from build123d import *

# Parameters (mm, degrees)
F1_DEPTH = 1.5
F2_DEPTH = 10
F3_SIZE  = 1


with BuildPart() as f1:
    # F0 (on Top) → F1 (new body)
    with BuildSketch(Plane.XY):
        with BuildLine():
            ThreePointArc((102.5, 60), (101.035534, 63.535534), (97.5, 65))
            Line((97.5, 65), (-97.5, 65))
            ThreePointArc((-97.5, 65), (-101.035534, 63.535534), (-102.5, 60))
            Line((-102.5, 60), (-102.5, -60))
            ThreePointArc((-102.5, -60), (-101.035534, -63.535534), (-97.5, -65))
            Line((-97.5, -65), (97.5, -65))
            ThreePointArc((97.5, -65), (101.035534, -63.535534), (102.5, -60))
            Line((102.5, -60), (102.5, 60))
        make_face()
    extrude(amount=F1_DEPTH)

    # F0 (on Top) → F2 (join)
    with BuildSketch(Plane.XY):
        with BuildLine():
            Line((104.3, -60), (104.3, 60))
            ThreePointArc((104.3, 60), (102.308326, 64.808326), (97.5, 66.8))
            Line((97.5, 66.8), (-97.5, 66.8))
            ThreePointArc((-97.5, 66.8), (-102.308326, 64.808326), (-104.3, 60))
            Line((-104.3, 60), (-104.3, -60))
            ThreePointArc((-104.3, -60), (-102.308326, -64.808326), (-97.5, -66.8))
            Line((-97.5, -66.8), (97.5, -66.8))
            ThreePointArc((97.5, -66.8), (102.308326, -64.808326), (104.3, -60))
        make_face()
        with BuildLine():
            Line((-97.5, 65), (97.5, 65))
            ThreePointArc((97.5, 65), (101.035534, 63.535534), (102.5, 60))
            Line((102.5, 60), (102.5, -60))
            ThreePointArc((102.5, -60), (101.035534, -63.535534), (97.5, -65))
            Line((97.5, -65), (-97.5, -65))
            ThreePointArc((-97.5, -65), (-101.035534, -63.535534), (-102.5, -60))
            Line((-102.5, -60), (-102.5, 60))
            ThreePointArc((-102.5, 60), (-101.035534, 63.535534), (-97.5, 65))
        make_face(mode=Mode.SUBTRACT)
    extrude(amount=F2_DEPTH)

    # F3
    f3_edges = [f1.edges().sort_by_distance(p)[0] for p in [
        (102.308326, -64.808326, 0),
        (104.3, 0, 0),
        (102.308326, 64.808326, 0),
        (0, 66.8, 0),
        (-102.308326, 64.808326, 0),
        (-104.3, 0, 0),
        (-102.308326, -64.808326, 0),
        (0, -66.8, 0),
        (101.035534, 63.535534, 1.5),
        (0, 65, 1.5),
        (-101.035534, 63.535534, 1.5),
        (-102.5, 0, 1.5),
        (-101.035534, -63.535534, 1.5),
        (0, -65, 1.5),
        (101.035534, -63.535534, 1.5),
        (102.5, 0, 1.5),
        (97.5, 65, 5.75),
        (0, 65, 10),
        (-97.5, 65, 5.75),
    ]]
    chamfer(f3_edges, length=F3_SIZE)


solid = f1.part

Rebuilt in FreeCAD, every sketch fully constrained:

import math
import FreeCAD as App
import Part
import Sketcher
from FreeCAD import Vector
Q = App.Units.Quantity


def edges_at(feature, points):
    """Names of the edges that pass closest to the given points."""
    edges = feature.Shape.Edges
    near = lambda p: min(range(len(edges)), key=lambda i: edges[i].distToShape(Part.Vertex(*p))[0])
    return sorted({f"Edge{near(p) + 1}" for p in points})

doc = App.newDocument("Part")
body = doc.addObject("PartDesign::Body", "Body")

sketch1 = body.newObject("Sketcher::SketchObject", "Sketch")
sketch1.AttachmentSupport = (doc.getObject("XY_Plane"), [""])
sketch1.MapMode = "FlatFace"
sketch1.addGeometry([
    Part.ArcOfCircle(Part.Circle(Vector(97.5, 60, 0), Vector(0, 0, 1), 5), math.radians(-0.000004), math.radians(90.000004)),
    Part.LineSegment(Vector(97.5, 65, 0), Vector(-97.5, 65, 0)),
    Part.ArcOfCircle(Part.Circle(Vector(-97.5, 60, 0), Vector(0, 0, 1), 5), math.radians(89.999996), math.radians(180.000004)),
    Part.LineSegment(Vector(-102.5, 60, 0), Vector(-102.5, -60, 0)),
    Part.ArcOfCircle(Part.Circle(Vector(-97.5, -60, 0), Vector(0, 0, 1), 5), math.radians(179.999996), math.radians(270.000004)),
    Part.LineSegment(Vector(-97.5, -65, 0), Vector(97.5, -65, 0)),
    Part.ArcOfCircle(Part.Circle(Vector(97.5, -60, 0), Vector(0, 0, 1), 5), math.radians(-90.000004), math.radians(0.000004)),
    Part.LineSegment(Vector(102.5, -60, 0), Vector(102.5, 60, 0)),
], False)
sketch1.addConstraint([
    Sketcher.Constraint("Tangent", 0, 2, 1, 1),
    Sketcher.Constraint("Tangent", 1, 2, 2, 1),
    Sketcher.Constraint("Tangent", 2, 2, 3, 1),
    Sketcher.Constraint("Tangent", 3, 2, 4, 1),
    Sketcher.Constraint("Tangent", 4, 2, 5, 1),
    Sketcher.Constraint("Tangent", 5, 2, 6, 1),
    Sketcher.Constraint("Tangent", 6, 2, 7, 1),
    Sketcher.Constraint("Tangent", 7, 2, 0, 1),
    Sketcher.Constraint("Horizontal", 1),
    Sketcher.Constraint("Vertical", 3),
    Sketcher.Constraint("Horizontal", 5),
    Sketcher.Constraint("Vertical", 7),
    Sketcher.Constraint("Equal", 0, 2),
    Sketcher.Constraint("Equal", 2, 4),
    Sketcher.Constraint("Equal", 4, 6),
    Sketcher.Constraint("Symmetric", 0, 3, 4, 3, -1, 1),
    Sketcher.Constraint("Radius", 0, Q("5 mm")),
    Sketcher.Constraint("DistanceX", 1, 2, 1, 1, Q("195 mm")),
    Sketcher.Constraint("DistanceY", 3, 2, 3, 1, Q("120 mm")),
])
pad1 = body.newObject("PartDesign::Pad", "Pad")
pad1.Profile = sketch1
pad1.Length = 1.5

sketch2 = body.newObject("Sketcher::SketchObject", "Sketch001")
sketch2.AttachmentSupport = (doc.getObject("XY_Plane"), [""])
sketch2.MapMode = "FlatFace"
sketch2.addGeometry([
    Part.LineSegment(Vector(104.3, -60, 0), Vector(104.3, 60, 0)),
    Part.ArcOfCircle(Part.Circle(Vector(97.5, 60, 0), Vector(0, 0, 1), 6.8), math.radians(0.000003), math.radians(89.999997)),
    Part.LineSegment(Vector(97.5, 66.8, 0), Vector(-97.5, 66.8, 0)),
    Part.ArcOfCircle(Part.Circle(Vector(-97.5, 60, 0), Vector(0, 0, 1), 6.8), math.radians(90.000003), math.radians(179.999997)),
    Part.LineSegment(Vector(-104.3, 60, 0), Vector(-104.3, -60, 0)),
    Part.ArcOfCircle(Part.Circle(Vector(-97.5, -60, 0), Vector(0, 0, 1), 6.8), math.radians(-179.999997), math.radians(-90.000003)),
    Part.LineSegment(Vector(-97.5, -66.8, 0), Vector(97.5, -66.8, 0)),
    Part.ArcOfCircle(Part.Circle(Vector(97.5, -60, 0), Vector(0, 0, 1), 6.8), math.radians(-89.999997), math.radians(-0.000003)),
    Part.ArcOfCircle(Part.Circle(Vector(-97.5, 60, 0), Vector(0, 0, 1), 5), math.radians(89.999996), math.radians(180.000004)),
    Part.LineSegment(Vector(-97.5, 65, 0), Vector(97.5, 65, 0)),
    Part.ArcOfCircle(Part.Circle(Vector(97.5, 60, 0), Vector(0, 0, 1), 5), math.radians(-0.000004), math.radians(90.000004)),
    Part.LineSegment(Vector(102.5, 60, 0), Vector(102.5, -60, 0)),
    Part.ArcOfCircle(Part.Circle(Vector(97.5, -60, 0), Vector(0, 0, 1), 5), math.radians(-90.000004), math.radians(0.000004)),
    Part.LineSegment(Vector(97.5, -65, 0), Vector(-97.5, -65, 0)),
    Part.ArcOfCircle(Part.Circle(Vector(-97.5, -60, 0), Vector(0, 0, 1), 5), math.radians(179.999996), math.radians(270.000004)),
    Part.LineSegment(Vector(-102.5, -60, 0), Vector(-102.5, 60, 0)),
], False)
sketch2.addConstraint([
    Sketcher.Constraint("Tangent", 0, 2, 1, 1),
    Sketcher.Constraint("Tangent", 1, 2, 2, 1),
    Sketcher.Constraint("Tangent", 2, 2, 3, 1),
    Sketcher.Constraint("Tangent", 3, 2, 4, 1),
    Sketcher.Constraint("Tangent", 4, 2, 5, 1),
    Sketcher.Constraint("Tangent", 5, 2, 6, 1),
    Sketcher.Constraint("Tangent", 6, 2, 7, 1),
    Sketcher.Constraint("Tangent", 7, 2, 0, 1),
    Sketcher.Constraint("Tangent", 8, 1, 9, 1),
    Sketcher.Constraint("Tangent", 9, 2, 10, 2),
    Sketcher.Constraint("Tangent", 10, 1, 11, 1),
    Sketcher.Constraint("Tangent", 11, 2, 12, 2),
    Sketcher.Constraint("Tangent", 12, 1, 13, 1),
    Sketcher.Constraint("Tangent", 13, 2, 14, 2),
    Sketcher.Constraint("Tangent", 14, 1, 15, 1),
    Sketcher.Constraint("Tangent", 15, 2, 8, 2),
    Sketcher.Constraint("Vertical", 0),
    Sketcher.Constraint("Horizontal", 2),
    Sketcher.Constraint("Vertical", 4),
    Sketcher.Constraint("Horizontal", 6),
    Sketcher.Constraint("Horizontal", 9),
    Sketcher.Constraint("Vertical", 11),
    Sketcher.Constraint("Horizontal", 13),
    Sketcher.Constraint("Vertical", 15),
    Sketcher.Constraint("Coincident", 8, 3, 3, 3),
    Sketcher.Constraint("Coincident", 10, 3, 1, 3),
    Sketcher.Constraint("Coincident", 12, 3, 7, 3),
    Sketcher.Constraint("Equal", 1, 3),
    Sketcher.Constraint("Equal", 3, 5),
    Sketcher.Constraint("Equal", 5, 7),
    Sketcher.Constraint("Equal", 12, 14),
    Sketcher.Constraint("Symmetric", 1, 3, 5, 3, -1, 1),
    Sketcher.Constraint("Radius", 8, Q("5 mm")),
    Sketcher.Constraint("Radius", 1, Q("6.8 mm")),
    Sketcher.Constraint("DistanceX", 2, 2, 2, 1, Q("195 mm")),
    Sketcher.Constraint("DistanceY", 0, 1, 0, 2, Q("120 mm")),
])
pad2 = body.newObject("PartDesign::Pad", "Pad001")
pad2.Profile = sketch2
pad2.Length = 10
doc.recompute()

chamfer = body.newObject("PartDesign::Chamfer", "Chamfer")
chamfer.Base = (pad2, edges_at(pad2, [
    (102.308, -64.808, 0),
    (104.3, 0, 0),
    (102.308, 64.808, 0),
    (0, 66.8, 0),
    (-102.308, 64.808, 0),
    (-104.3, 0, 0),
    (-102.308, -64.808, 0),
    (0, -66.8, 0),
    (101.036, 63.536, 1.5),
    (0, 65, 1.5),
    (-101.036, 63.536, 1.5),
    (-102.5, 0, 1.5),
    (-101.036, -63.536, 1.5),
    (0, -65, 1.5),
    (101.036, -63.536, 1.5),
    (102.5, 0, 1.5),
    (97.5, 65, 5.75),
    (0, 65, 10),
    (-97.5, 65, 5.75),
]))
chamfer.Size = 1

doc.recompute()
